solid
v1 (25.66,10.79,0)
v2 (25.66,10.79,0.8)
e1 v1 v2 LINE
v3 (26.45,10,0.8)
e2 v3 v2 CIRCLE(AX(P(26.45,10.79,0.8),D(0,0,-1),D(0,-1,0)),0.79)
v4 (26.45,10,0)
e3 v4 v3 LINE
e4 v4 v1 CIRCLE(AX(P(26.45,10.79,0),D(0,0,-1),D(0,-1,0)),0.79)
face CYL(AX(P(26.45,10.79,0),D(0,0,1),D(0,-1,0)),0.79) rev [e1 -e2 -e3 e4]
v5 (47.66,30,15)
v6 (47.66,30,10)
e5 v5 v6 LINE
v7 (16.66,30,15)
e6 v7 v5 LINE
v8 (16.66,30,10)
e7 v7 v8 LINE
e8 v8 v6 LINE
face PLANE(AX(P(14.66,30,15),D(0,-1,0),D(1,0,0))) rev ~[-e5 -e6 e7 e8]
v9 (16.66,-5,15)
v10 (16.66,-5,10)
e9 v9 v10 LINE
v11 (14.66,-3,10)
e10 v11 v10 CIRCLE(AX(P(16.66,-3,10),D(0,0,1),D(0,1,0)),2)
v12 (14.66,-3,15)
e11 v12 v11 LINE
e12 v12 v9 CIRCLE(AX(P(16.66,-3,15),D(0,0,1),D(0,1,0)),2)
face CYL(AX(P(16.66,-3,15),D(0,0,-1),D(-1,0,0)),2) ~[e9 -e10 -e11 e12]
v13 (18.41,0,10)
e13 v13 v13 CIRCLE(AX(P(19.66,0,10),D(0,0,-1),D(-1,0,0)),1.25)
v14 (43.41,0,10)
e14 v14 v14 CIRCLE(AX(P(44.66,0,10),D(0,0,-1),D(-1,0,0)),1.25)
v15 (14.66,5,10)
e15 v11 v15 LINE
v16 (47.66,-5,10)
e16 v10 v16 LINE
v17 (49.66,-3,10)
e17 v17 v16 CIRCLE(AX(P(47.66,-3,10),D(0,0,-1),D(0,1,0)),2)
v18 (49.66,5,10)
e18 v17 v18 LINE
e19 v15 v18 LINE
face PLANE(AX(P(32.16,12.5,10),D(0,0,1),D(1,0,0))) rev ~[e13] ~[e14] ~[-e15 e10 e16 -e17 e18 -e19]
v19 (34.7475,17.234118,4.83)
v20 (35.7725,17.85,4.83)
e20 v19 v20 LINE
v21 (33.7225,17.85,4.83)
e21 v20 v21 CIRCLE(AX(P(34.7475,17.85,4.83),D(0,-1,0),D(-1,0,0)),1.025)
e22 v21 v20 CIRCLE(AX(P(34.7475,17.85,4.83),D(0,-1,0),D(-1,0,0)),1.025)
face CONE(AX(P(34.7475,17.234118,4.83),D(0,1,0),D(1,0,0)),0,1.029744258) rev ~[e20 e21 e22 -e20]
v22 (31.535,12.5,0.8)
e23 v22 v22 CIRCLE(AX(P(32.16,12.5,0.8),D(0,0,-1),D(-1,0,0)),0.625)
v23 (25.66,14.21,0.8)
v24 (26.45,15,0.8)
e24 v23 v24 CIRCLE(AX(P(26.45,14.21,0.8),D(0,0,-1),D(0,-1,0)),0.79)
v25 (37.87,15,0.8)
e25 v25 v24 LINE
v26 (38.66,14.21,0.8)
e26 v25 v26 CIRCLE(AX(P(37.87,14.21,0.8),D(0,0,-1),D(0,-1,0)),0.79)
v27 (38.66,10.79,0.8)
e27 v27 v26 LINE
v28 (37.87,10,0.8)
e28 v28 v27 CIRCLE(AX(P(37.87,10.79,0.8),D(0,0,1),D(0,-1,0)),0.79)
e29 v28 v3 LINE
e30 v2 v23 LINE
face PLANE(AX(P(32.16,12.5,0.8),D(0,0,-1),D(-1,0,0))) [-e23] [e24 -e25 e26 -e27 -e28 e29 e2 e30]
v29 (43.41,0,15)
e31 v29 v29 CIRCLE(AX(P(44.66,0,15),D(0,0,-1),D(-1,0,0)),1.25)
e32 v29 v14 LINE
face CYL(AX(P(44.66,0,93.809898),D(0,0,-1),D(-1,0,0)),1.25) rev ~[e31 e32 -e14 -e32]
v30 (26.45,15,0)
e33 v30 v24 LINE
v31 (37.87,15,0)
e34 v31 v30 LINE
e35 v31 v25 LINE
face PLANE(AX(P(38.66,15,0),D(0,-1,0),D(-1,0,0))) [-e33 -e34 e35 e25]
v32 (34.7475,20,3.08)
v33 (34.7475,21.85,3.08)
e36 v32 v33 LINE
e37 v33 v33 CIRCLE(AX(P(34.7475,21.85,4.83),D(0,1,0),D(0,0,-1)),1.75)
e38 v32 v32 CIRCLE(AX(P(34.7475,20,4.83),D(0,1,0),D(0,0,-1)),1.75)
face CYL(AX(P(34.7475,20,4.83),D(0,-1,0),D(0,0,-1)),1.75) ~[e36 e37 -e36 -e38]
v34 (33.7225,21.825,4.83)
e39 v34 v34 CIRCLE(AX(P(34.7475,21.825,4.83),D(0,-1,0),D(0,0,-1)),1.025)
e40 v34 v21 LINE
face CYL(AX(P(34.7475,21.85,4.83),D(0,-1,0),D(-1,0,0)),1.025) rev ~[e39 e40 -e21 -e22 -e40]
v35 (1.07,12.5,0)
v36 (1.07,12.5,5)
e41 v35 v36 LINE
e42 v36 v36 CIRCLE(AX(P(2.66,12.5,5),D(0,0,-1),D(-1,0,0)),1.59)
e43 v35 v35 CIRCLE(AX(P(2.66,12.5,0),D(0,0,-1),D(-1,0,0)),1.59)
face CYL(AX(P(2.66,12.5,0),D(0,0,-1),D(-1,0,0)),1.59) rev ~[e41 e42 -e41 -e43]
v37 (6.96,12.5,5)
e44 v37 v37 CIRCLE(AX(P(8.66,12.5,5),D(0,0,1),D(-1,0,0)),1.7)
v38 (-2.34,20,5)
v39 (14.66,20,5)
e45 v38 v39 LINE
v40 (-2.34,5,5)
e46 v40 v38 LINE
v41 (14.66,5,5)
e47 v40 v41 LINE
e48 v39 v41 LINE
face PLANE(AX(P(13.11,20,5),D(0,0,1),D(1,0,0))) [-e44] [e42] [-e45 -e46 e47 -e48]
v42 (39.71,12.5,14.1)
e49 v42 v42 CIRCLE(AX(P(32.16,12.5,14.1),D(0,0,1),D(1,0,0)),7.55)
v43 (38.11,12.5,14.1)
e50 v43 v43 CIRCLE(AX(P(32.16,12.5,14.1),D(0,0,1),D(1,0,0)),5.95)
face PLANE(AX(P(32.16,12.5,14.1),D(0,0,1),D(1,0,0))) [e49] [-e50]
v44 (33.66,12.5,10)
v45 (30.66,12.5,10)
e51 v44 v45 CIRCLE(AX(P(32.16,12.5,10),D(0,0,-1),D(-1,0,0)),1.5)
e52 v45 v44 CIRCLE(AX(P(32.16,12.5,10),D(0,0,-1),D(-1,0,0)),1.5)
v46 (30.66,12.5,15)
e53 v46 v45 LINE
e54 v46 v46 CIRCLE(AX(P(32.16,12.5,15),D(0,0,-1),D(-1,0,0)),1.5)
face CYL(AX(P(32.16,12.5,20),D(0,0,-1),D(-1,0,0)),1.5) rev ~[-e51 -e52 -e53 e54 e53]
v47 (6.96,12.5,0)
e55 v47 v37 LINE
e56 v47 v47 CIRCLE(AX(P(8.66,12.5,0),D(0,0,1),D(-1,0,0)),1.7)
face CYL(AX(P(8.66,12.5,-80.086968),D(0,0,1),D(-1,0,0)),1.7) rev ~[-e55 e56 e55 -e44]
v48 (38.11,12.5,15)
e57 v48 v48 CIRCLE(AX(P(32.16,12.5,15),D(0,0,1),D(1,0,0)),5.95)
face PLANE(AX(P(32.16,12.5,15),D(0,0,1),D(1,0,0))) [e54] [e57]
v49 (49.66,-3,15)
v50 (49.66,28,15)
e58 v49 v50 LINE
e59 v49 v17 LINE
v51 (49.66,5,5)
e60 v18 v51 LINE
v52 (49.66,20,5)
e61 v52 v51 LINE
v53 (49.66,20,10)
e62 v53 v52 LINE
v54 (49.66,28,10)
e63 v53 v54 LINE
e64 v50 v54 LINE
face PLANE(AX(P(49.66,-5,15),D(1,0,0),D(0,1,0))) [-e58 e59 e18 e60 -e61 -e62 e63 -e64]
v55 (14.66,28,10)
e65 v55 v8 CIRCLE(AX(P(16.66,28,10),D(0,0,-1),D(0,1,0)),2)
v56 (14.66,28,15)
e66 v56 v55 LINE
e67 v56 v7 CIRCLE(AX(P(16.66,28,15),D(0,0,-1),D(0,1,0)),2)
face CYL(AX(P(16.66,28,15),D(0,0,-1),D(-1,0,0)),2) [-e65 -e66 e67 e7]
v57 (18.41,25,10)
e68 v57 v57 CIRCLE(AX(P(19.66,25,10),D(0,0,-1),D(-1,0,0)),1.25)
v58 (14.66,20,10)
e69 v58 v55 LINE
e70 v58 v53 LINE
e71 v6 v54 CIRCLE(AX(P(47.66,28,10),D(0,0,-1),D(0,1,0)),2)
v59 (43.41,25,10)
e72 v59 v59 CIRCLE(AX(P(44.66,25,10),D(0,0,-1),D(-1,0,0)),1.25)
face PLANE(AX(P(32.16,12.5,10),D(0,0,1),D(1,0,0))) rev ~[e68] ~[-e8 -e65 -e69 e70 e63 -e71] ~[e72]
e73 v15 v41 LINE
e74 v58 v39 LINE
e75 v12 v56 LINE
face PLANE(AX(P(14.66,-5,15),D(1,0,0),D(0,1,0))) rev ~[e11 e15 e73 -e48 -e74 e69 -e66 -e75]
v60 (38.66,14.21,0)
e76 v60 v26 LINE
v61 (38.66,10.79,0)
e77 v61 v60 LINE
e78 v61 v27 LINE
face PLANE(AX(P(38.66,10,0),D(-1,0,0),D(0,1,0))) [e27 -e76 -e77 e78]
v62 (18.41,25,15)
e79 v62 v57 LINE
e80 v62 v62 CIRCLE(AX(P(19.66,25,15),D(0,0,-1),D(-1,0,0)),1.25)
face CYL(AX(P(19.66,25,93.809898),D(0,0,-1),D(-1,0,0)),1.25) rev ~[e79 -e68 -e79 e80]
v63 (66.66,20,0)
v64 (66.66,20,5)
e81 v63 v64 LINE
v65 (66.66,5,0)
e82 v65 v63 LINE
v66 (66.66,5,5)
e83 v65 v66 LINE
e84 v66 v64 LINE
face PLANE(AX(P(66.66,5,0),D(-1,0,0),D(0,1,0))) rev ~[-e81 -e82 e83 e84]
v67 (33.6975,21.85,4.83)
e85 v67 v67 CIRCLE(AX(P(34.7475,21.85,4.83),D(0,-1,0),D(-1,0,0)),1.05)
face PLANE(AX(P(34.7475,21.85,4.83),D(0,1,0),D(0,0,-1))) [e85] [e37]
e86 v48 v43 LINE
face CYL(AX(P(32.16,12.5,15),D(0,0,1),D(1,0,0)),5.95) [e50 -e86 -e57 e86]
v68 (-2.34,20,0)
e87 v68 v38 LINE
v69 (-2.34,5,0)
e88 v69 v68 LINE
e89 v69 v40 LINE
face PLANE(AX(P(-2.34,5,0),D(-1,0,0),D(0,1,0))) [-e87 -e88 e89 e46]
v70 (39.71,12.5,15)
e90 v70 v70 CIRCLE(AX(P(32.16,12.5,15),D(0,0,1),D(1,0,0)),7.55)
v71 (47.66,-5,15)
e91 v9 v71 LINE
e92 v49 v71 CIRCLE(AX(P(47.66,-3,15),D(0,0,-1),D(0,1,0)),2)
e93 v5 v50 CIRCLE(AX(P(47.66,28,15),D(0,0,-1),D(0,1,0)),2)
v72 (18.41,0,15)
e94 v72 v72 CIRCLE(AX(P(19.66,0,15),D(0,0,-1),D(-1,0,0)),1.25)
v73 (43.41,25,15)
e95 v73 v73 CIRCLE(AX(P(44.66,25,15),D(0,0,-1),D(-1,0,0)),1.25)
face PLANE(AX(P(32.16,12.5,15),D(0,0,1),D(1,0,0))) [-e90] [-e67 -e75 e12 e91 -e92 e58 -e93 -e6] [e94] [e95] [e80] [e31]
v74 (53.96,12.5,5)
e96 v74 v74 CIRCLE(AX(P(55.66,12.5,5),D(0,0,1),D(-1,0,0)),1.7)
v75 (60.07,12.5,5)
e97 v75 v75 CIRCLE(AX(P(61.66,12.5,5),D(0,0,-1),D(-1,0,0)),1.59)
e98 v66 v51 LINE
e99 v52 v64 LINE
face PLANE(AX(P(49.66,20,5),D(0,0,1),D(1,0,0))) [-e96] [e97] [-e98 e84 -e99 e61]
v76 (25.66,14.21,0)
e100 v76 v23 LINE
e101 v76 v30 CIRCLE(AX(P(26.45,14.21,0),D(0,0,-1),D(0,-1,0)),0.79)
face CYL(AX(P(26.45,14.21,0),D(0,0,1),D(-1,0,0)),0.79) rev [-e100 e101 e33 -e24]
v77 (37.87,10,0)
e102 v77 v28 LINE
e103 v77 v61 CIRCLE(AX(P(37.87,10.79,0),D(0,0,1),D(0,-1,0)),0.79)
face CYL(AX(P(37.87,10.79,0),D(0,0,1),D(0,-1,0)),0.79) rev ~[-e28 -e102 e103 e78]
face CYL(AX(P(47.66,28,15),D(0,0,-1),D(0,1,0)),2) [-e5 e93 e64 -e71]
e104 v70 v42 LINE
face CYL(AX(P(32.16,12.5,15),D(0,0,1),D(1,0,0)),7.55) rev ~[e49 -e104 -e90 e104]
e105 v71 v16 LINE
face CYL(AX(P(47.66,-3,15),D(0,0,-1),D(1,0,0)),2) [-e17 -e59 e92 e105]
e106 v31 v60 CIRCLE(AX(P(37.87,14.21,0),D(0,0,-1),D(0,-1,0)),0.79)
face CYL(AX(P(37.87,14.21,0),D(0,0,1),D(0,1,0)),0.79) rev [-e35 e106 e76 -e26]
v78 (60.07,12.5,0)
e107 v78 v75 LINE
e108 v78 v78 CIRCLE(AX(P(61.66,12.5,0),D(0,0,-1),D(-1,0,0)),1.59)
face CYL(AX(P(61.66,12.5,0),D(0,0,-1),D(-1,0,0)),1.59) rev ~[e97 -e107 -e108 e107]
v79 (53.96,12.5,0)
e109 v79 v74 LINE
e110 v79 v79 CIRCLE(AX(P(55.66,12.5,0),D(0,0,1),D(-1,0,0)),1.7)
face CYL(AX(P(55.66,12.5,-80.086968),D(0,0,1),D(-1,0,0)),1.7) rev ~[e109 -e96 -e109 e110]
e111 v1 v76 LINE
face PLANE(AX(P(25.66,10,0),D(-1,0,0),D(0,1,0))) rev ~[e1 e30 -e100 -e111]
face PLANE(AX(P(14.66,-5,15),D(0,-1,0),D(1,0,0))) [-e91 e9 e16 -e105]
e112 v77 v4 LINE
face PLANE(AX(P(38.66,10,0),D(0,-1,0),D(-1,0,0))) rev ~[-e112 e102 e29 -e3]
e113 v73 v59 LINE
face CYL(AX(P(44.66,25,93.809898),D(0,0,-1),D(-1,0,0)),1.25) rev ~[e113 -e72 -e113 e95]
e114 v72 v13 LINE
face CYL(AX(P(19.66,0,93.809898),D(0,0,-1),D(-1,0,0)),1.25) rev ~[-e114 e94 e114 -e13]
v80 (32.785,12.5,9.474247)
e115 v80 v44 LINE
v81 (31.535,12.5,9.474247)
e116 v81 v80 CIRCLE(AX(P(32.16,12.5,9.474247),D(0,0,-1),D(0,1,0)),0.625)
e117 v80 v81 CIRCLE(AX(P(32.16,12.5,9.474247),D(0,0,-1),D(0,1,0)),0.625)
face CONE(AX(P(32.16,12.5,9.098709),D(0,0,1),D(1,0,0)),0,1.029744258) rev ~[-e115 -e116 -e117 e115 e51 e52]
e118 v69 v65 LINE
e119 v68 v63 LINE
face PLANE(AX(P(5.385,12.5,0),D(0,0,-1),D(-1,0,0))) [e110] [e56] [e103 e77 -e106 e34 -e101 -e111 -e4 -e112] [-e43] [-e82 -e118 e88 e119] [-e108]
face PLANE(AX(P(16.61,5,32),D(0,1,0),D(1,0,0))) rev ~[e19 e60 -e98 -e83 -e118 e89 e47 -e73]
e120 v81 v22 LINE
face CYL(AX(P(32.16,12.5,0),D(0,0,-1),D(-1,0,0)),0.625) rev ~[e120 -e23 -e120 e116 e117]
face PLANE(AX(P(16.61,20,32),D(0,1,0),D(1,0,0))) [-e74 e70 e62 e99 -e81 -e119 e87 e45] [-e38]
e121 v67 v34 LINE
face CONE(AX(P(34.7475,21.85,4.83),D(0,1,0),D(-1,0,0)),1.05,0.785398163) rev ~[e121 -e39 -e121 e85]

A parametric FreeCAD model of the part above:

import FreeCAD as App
import Part
import Sketcher

V = App.Vector


def edges_at(feature, points):
    """Names of the edges that pass closest to the given points."""
    edges = feature.Shape.Edges
    near = lambda p: min(range(len(edges)), key=lambda i: edges[i].distToShape(Part.Vertex(*p))[0])
    return sorted({f"Edge{near(p) + 1}" for p in points})


def add_polygon(sketch, points):
    """Adds a closed chain of lines whose ends are joined by coincident constraints."""
    first, n = sketch.GeometryCount, len(points)
    for a, b in zip(points, points[1:] + points[:1]):
        sketch.addGeometry(Part.LineSegment(App.Vector(*a, 0), App.Vector(*b, 0)), False)
    for i in range(n):
        sketch.addConstraint(Sketcher.Constraint("Coincident", first + i, 2, first + (i + 1) % n, 1))

doc = App.newDocument("Part")
body = doc.addObject("PartDesign::Body", "Body")

sketch1 = body.newObject("Sketcher::SketchObject", "Sketch")
sketch1.AttachmentSupport = (doc.getObject("XY_Plane"), [""])
sketch1.MapMode = "FlatFace"
add_polygon(sketch1, [(0, 20), (0, 0), (60, 0), (60, 20)])
sketch1.addConstraint(Sketcher.Constraint("Vertical", 0))
sketch1.addConstraint(Sketcher.Constraint("Horizontal", 1))
sketch1.addConstraint(Sketcher.Constraint("Vertical", 2))
sketch1.addConstraint(Sketcher.Constraint("Horizontal", 3))
sketch1.addConstraint(Sketcher.Constraint("Coincident", 0, 2, -1, 1))
sketch1.addConstraint(Sketcher.Constraint("DistanceX", 1, 1, 1, 2, 60.0))
sketch1.addConstraint(Sketcher.Constraint("DistanceY", 0, 2, 0, 1, 20.0))
pad1 = body.newObject("PartDesign::Pad", "Pad")
pad1.Profile = sketch1
pad1.Length = 37

sketch2 = body.newObject("Sketcher::SketchObject", "Sketch001")
sketch2.AttachmentSupport = (doc.getObject("XY_Plane"), [""])
sketch2.MapMode = "FlatFace"
add_polygon(sketch2, [(60, 5), (60, 0), (0, 0), (0, 5)])
sketch2.addConstraint(Sketcher.Constraint("Vertical", 0))
sketch2.addConstraint(Sketcher.Constraint("Horizontal", 1))
sketch2.addConstraint(Sketcher.Constraint("Vertical", 2))
sketch2.addConstraint(Sketcher.Constraint("Horizontal", 3))
sketch2.addConstraint(Sketcher.Constraint("Coincident", 1, 2, -1, 1))
sketch2.addConstraint(Sketcher.Constraint("DistanceX", 1, 2, 1, 1, 60.0))
sketch2.addConstraint(Sketcher.Constraint("DistanceY", 0, 2, 0, 1, 5.0))
pocket1 = body.newObject("PartDesign::Pocket", "Pocket")
pocket1.Profile = sketch2
pocket1.Type = "ThroughAll"
pocket1.Midplane = True

sketch3 = body.newObject("Sketcher::SketchObject", "Sketch002")
sketch3.AttachmentSupport = (doc.getObject("XZ_Plane"), [""])
sketch3.MapMode = "FlatFace"
sketch3.AttachmentOffset = App.Placement(V(0, 0, -20), App.Rotation())
sketch3.addGeometry(Part.Circle(V(34.7, 4.8, 0), V(0, 0, 1), 1.8), False)
sketch3.addConstraint(Sketcher.Constraint("Diameter", 0, 3.5))
sketch3.addConstraint(Sketcher.Constraint("DistanceY", -1, 1, 0, 3, 4.83))
sketch3.addConstraint(Sketcher.Constraint("DistanceX", -1, 1, 0, 3, 34.7475))
pad2 = body.newObject("PartDesign::Pad", "Pad001")
pad2.Profile = sketch3
pad2.Length = 1.85
pad2.Reversed = True

sketch4 = body.newObject("Sketcher::SketchObject", "Sketch003")
sketch4.AttachmentSupport = (doc.getObject("XZ_Plane"), [""])
sketch4.MapMode = "FlatFace"
sketch4.AttachmentOffset = App.Placement(V(0, 0, -20), App.Rotation())
add_polygon(sketch4, [(59.66, 0), (59.66, 37), (60, 37), (60, 0)])
add_polygon(sketch4, [(0, 0), (0, 37), (4.66, 37), (4.66, 0)])
sketch4.addConstraint(Sketcher.Constraint("Vertical", 0))
sketch4.addConstraint(Sketcher.Constraint("Horizontal", 1))
sketch4.addConstraint(Sketcher.Constraint("Vertical", 2))
sketch4.addConstraint(Sketcher.Constraint("Horizontal", 3))
sketch4.addConstraint(Sketcher.Constraint("Vertical", 4))
sketch4.addConstraint(Sketcher.Constraint("Horizontal", 5))
sketch4.addConstraint(Sketcher.Constraint("Vertical", 6))
sketch4.addConstraint(Sketcher.Constraint("Horizontal", 7))
sketch4.addConstraint(Sketcher.Constraint("Coincident", 7, 2, -1, 1))
sketch4.addConstraint(Sketcher.Constraint("PointOnObject", 2, 2, -1))
sketch4.addConstraint(Sketcher.Constraint("Horizontal", 1, 2, 4, 2))
sketch4.addConstraint(Sketcher.Constraint("DistanceY", 0, 1, 0, 2, 37.0))
sketch4.addConstraint(Sketcher.Constraint("DistanceX", -1, 1, 1, 2, 60.0))
sketch4.addConstraint(Sketcher.Constraint("DistanceX", 5, 2, 0, 2, 55.0))
sketch4.addConstraint(Sketcher.Constraint("DistanceX", 1, 1, 1, 2, 0.34))
pocket2 = body.newObject("PartDesign::Pocket", "Pocket001")
pocket2.Profile = sketch4
pocket2.Type = "ThroughAll"
pocket2.Reversed = True

sketch5 = body.newObject("Sketcher::SketchObject", "Sketch004")
sketch5.AttachmentSupport = (doc.getObject("XZ_Plane"), [""])
sketch5.MapMode = "FlatFace"
sketch5.AttachmentOffset = App.Placement(V(0, 0, -20), App.Rotation())
add_polygon(sketch5, [(51, 5), (51, 37), (60, 37), (60, 5)])
add_polygon(sketch5, [(5, 5), (5, 37), (13, 37), (13, 5)])
sketch5.addConstraint(Sketcher.Constraint("Vertical", 0))
sketch5.addConstraint(Sketcher.Constraint("Horizontal", 1))
sketch5.addConstraint(Sketcher.Constraint("Vertical", 2))
sketch5.addConstraint(Sketcher.Constraint("Horizontal", 3))
sketch5.addConstraint(Sketcher.Constraint("Vertical", 4))
sketch5.addConstraint(Sketcher.Constraint("Horizontal", 5))
sketch5.addConstraint(Sketcher.Constraint("Vertical", 6))
sketch5.addConstraint(Sketcher.Constraint("Horizontal", 7))
sketch5.addConstraint(Sketcher.Constraint("Horizontal", 1, 2, 4, 2))
sketch5.addConstraint(Sketcher.Constraint("Horizontal", 3, 2, 6, 2))
sketch5.addConstraint(Sketcher.Constraint("Equal", 3, 5))
sketch5.addConstraint(Sketcher.Constraint("DistanceY", 0, 1, 0, 2, 32.0))
sketch5.addConstraint(Sketcher.Constraint("DistanceY", -1, 1, 0, 2, 37.0))
sketch5.addConstraint(Sketcher.Constraint("DistanceX", 4, 2, 1, 2, 55.0))
sketch5.addConstraint(Sketcher.Constraint("DistanceX", 1, 1, 1, 2, 8.45))
sketch5.addConstraint(Sketcher.Constraint("DistanceX", -1, 1, 0, 2, 51.21))
pocket3 = body.newObject("PartDesign::Pocket", "Pocket002")
pocket3.Profile = sketch5
pocket3.Type = "ThroughAll"
pocket3.Reversed = True

sketch6 = body.newObject("Sketcher::SketchObject", "Sketch005")
sketch6.AttachmentSupport = (doc.getObject("XZ_Plane"), [""])
sketch6.MapMode = "FlatFace"
sketch6.AttachmentOffset = App.Placement(V(0, 0, -20), App.Rotation())
add_polygon(sketch6, [(-3, -8), (-3, 45), (68, 45), (68, -8)])
add_polygon(sketch6, [(51, 37), (13, 37), (13, 17), (51, 17)])
sketch6.addConstraint(Sketcher.Constraint("Vertical", 0))
sketch6.addConstraint(Sketcher.Constraint("Horizontal", 1))
sketch6.addConstraint(Sketcher.Constraint("Vertical", 2))
sketch6.addConstraint(Sketcher.Constraint("Horizontal", 3))
sketch6.addConstraint(Sketcher.Constraint("Horizontal", 4))
sketch6.addConstraint(Sketcher.Constraint("Vertical", 5))
sketch6.addConstraint(Sketcher.Constraint("Horizontal", 6))
sketch6.addConstraint(Sketcher.Constraint("Vertical", 7))
sketch6.addConstraint(Sketcher.Constraint("DistanceY", 5, 2, 5, 1, 20.0))
sketch6.addConstraint(Sketcher.Constraint("DistanceX", 4, 2, 4, 1, 38.1))
sketch6.addConstraint(Sketcher.Constraint("DistanceY", -1, 1, 4, 2, 37.0))
sketch6.addConstraint(Sketcher.Constraint("DistanceX", 1, 1, 1, 2, 70.68))
sketch6.addConstraint(Sketcher.Constraint("DistanceY", 0, 1, 0, 2, 52.68))
sketch6.addConstraint(Sketcher.Constraint("DistanceX", -1, 1, 1, 2, 67.5))
sketch6.addConstraint(Sketcher.Constraint("DistanceY", -1, 1, 0, 2, 44.84))
sketch6.addConstraint(Sketcher.Constraint("DistanceX", -1, 1, 4, 2, 13.11))
pocket4 = body.newObject("PartDesign::Pocket", "Pocket003")
pocket4.Profile = sketch6
pocket4.Type = "ThroughAll"
pocket4.Midplane = True

sketch7 = body.newObject("Sketcher::SketchObject", "Sketch006")
sketch7.AttachmentSupport = (doc.getObject("XZ_Plane"), [""])
sketch7.MapMode = "FlatFace"
sketch7.AttachmentOffset = App.Placement(V(0, 0, -20), App.Rotation())
add_polygon(sketch7, [(13, 27), (13, 37), (20, 37), (20, 27)])
add_polygon(sketch7, [(44, 27), (44, 37), (51, 37), (51, 27)])
sketch7.addConstraint(Sketcher.Constraint("Vertical", 0))
sketch7.addConstraint(Sketcher.Constraint("Horizontal", 1))
sketch7.addConstraint(Sketcher.Constraint("Vertical", 2))
sketch7.addConstraint(Sketcher.Constraint("Horizontal", 3))
sketch7.addConstraint(Sketcher.Constraint("Vertical", 4))
sketch7.addConstraint(Sketcher.Constraint("Horizontal", 5))
sketch7.addConstraint(Sketcher.Constraint("Vertical", 6))
sketch7.addConstraint(Sketcher.Constraint("Horizontal", 7))
sketch7.addConstraint(Sketcher.Constraint("Horizontal", 1, 2, 4, 2))
sketch7.addConstraint(Sketcher.Constraint("Horizontal", 3, 2, 6, 2))
sketch7.addConstraint(Sketcher.Constraint("Equal", 3, 5))
sketch7.addConstraint(Sketcher.Constraint("DistanceX", 1, 1, 1, 2, 7.0))
sketch7.addConstraint(Sketcher.Constraint("DistanceY", 0, 1, 0, 2, 10.0))
sketch7.addConstraint(Sketcher.Constraint("DistanceY", -1, 1, 0, 2, 37.0))
sketch7.addConstraint(Sketcher.Constraint("DistanceX", 1, 2, 4, 2, 24.1))
sketch7.addConstraint(Sketcher.Constraint("DistanceX", -1, 1, 0, 2, 13.11))
pocket5 = body.newObject("PartDesign::Pocket", "Pocket004")
pocket5.Profile = sketch7
pocket5.Type = "ThroughAll"
pocket5.Midplane = True

sketch8 = body.newObject("Sketcher::SketchObject", "Sketch007")
sketch8.AttachmentSupport = (doc.getObject("XY_Plane"), [""])
sketch8.MapMode = "FlatFace"
sketch8.AttachmentOffset = App.Placement(V(0, 0, 27), App.Rotation())
sketch8.addGeometry(Part.Circle(V(17.1, 12.5, 0), V(0, 0, 1), 1.7), False)
sketch8.addGeometry(Part.Circle(V(47.2, 12.5, 0), V(0, 0, 1), 1.7), False)
sketch8.addConstraint(Sketcher.Constraint("Equal", 0, 1))
sketch8.addConstraint(Sketcher.Constraint("Horizontal", 0, 3, 1, 3))
sketch8.addConstraint(Sketcher.Constraint("Diameter", 0, 3.4))
sketch8.addConstraint(Sketcher.Constraint("DistanceY", -1, 1, 0, 3, 12.5))
sketch8.addConstraint(Sketcher.Constraint("DistanceX", 0, 3, 1, 3, 30.1))
sketch8.addConstraint(Sketcher.Constraint("DistanceX", -1, 1, 0, 3, 17.11))
doc.recompute()
hole = body.newObject("PartDesign::Hole", "Hole")
hole.Profile = sketch8
hole.ThreadType = "None"
hole.Diameter = 3.4
hole.DepthType = "ThroughAll"

sketch9 = body.newObject("Sketcher::SketchObject", "Sketch008")
sketch9.AttachmentSupport = (doc.getObject("XY_Plane"), [""])
sketch9.MapMode = "FlatFace"
sketch9.AttachmentOffset = App.Placement(V(0, 0, 37), App.Rotation())
sketch9.addGeometry(Part.Circle(V(32.2, 12.5, 0), V(0, 0, 1), 2), False)
sketch9.addConstraint(Sketcher.Constraint("Diameter", 0, 4.0386))
sketch9.addConstraint(Sketcher.Constraint("DistanceY", -1, 1, 0, 3, 12.5))
sketch9.addConstraint(Sketcher.Constraint("DistanceX", -1, 1, 0, 3, 32.16))
doc.recompute()
hole2 = body.newObject("PartDesign::Hole", "Hole001")
hole2.Profile = sketch9
hole2.ThreadType = "None"
hole2.Diameter = 4.0386
hole2.DepthType = "Dimension"
hole2.Depth = 5
hole2.DrillPoint = "Angled"
hole2.DrillPointAngle = 118

sketch10 = body.newObject("Sketcher::SketchObject", "Sketch009")
sketch10.AttachmentSupport = (doc.getObject("XY_Plane"), [""])
sketch10.MapMode = "FlatFace"
sketch10.AttachmentOffset = App.Placement(V(0, 0, 17), App.Rotation())
sketch10.addGeometry(Part.Circle(V(32.2, 12.5, 0), V(0, 0, 1), 0.6), False)
sketch10.addConstraint(Sketcher.Constraint("Diameter", 0, 1.25))
sketch10.addConstraint(Sketcher.Constraint("DistanceY", -1, 1, 0, 3, 12.5))
sketch10.addConstraint(Sketcher.Constraint("DistanceX", -1, 1, 0, 3, 32.16))
pocket6 = body.newObject("PartDesign::Pocket", "Pocket005")
pocket6.Profile = sketch10
pocket6.Length = 27
pocket6.Reversed = True

sketch11 = body.newObject("Sketcher::SketchObject", "Sketch010")
sketch11.AttachmentSupport = (doc.getObject("XZ_Plane"), [""])
sketch11.MapMode = "FlatFace"
sketch11.AttachmentOffset = App.Placement(V(0, 0, -12.5), App.Rotation())
add_polygon(sketch11, [(32.2, 37), (34.2, 37), (34.2, 30.3), (32.8, 29.4), (32.8, 17), (32.2, 17)])
sketch11.addGeometry(Part.LineSegment(V(32.2, 37, 0), V(32.2, 17, 0)), True)
sketch11.addConstraint(Sketcher.Constraint("Horizontal", 0))
sketch11.addConstraint(Sketcher.Constraint("Vertical", 1))
sketch11.addConstraint(Sketcher.Constraint("Vertical", 3))
sketch11.addConstraint(Sketcher.Constraint("Horizontal", 4))
sketch11.addConstraint(Sketcher.Constraint("Vertical", 5))
sketch11.addConstraint(Sketcher.Constraint("Vertical", 6))
sketch11.addConstraint(Sketcher.Constraint("Coincident", 6, 1, 5, 2))
sketch11.addConstraint(Sketcher.Constraint("Horizontal", 3, 2, 6, 2))
sketch11.addConstraint(Sketcher.Constraint("DistanceY", 5, 1, 5, 2, 20.0))
sketch11.addConstraint(Sketcher.Constraint("DistanceY", -1, 1, 0, 2, 37.0))
sketch11.addConstraint(Sketcher.Constraint("DistanceX", 0, 1, 0, 2, 2.02))
sketch11.addConstraint(Sketcher.Constraint("DistanceX", 4, 2, 4, 1, 0.62))
sketch11.addConstraint(Sketcher.Constraint("DistanceY", 1, 2, 1, 1, 6.71))
sketch11.addConstraint(Sketcher.Constraint("DistanceY", 3, 2, 3, 1, 12.45))
sketch11.addConstraint(Sketcher.Constraint("DistanceX", -1, 1, 0, 2, 34.18))
groove = body.newObject("PartDesign::Groove", "Groove")
groove.Profile = sketch11
groove.ReferenceAxis = (sketch11, ["Axis0"])
groove.Angle = 360

sketch12 = body.newObject("Sketcher::SketchObject", "Sketch011")
sketch12.AttachmentSupport = (doc.getObject("XY_Plane"), [""])
sketch12.MapMode = "FlatFace"
sketch12.AttachmentOffset = App.Placement(V(0, 0, 17), App.Rotation())
sketch12.addGeometry(Part.Circle(V(37.2, 15, 0), V(0, 0, 1), 1.6), False)
sketch12.addGeometry(Part.Circle(V(27.1, 15, 0), V(0, 0, 1), 1.6), False)
sketch12.addConstraint(Sketcher.Constraint("Equal", 0, 1))
sketch12.addConstraint(Sketcher.Constraint("Horizontal", 0, 3, 1, 3))
sketch12.addConstraint(Sketcher.Constraint("Diameter", 0, 3.16))
sketch12.addConstraint(Sketcher.Constraint("DistanceY", -1, 1, 0, 3, 15.0))
sketch12.addConstraint(Sketcher.Constraint("DistanceX", 1, 3, 0, 3, 10.1))
sketch12.addConstraint(Sketcher.Constraint("DistanceX", -1, 1, 0, 3, 37.21))
pocket7 = body.newObject("PartDesign::Pocket", "Pocket006")
pocket7.Profile = sketch12
pocket7.Length = 8
pocket7.Reversed = True

sketch13 = body.newObject("Sketcher::SketchObject", "Sketch012")
sketch13.AttachmentSupport = (doc.getObject("XY_Plane"), [""])
sketch13.MapMode = "FlatFace"
sketch13.AttachmentOffset = App.Placement(V(0, 0, 17), App.Rotation())
sketch13.addGeometry(Part.Circle(V(47.2, 12.5, 0), V(0, 0, 1), 1.7), False)
sketch13.addGeometry(Part.Circle(V(17.1, 12.5, 0), V(0, 0, 1), 1.7), False)
sketch13.addGeometry(Part.Circle(V(27.1, 15, 0), V(0, 0, 1), 1.6), False)
sketch13.addGeometry(Part.Circle(V(37.2, 15, 0), V(0, 0, 1), 1.6), False)
sketch13.addConstraint(Sketcher.Constraint("Equal", 2, 3))
sketch13.addConstraint(Sketcher.Constraint("Horizontal", 0, 3, 1, 3))
sketch13.addConstraint(Sketcher.Constraint("Horizontal", 2, 3, 3, 3))
sketch13.addConstraint(Sketcher.Constraint("Diameter", 1, 3.4))
sketch13.addConstraint(Sketcher.Constraint("Diameter", 2, 3.16))
sketch13.addConstraint(Sketcher.Constraint("DistanceY", -1, 1, 2, 3, 15.0))
sketch13.addConstraint(Sketcher.Constraint("DistanceX", 1, 3, 2, 3, 10.0))
sketch13.addConstraint(Sketcher.Constraint("DistanceX", 3, 3, 0, 3, 10.0))
sketch13.addConstraint(Sketcher.Constraint("DistanceY", -1, 1, 0, 3, 12.5))
sketch13.addConstraint(Sketcher.Constraint("DistanceX", 1, 3, 0, 3, 30.1))
sketch13.addConstraint(Sketcher.Constraint("Diameter", 0, 3.41839))
sketch13.addConstraint(Sketcher.Constraint("DistanceX", -1, 1, 0, 3, 47.21))
pad3 = body.newObject("PartDesign::Pad", "Pad002")
pad3.Profile = sketch13
pad3.Length = 10

sketch14 = body.newObject("Sketcher::SketchObject", "Sketch013")
sketch14.AttachmentSupport = (doc.getObject("XY_Plane"), [""])
sketch14.MapMode = "FlatFace"
add_polygon(sketch14, [(51.2, 20), (51.2, 5), (13.1, 5), (13.1, 20)])
sketch14.addGeometry(Part.Circle(V(32.2, 12.5, 0), V(0, 0, 1), 0.6), False)
sketch14.addConstraint(Sketcher.Constraint("Vertical", 0))
sketch14.addConstraint(Sketcher.Constraint("Horizontal", 1))
sketch14.addConstraint(Sketcher.Constraint("Vertical", 2))
sketch14.addConstraint(Sketcher.Constraint("Horizontal", 3))
sketch14.addConstraint(Sketcher.Constraint("Diameter", 4, 1.25))
sketch14.addConstraint(Sketcher.Constraint("DistanceY", 0, 2, 0, 1, 15.0))
sketch14.addConstraint(Sketcher.Constraint("DistanceX", 1, 2, 1, 1, 38.1))
sketch14.addConstraint(Sketcher.Constraint("DistanceY", -1, 1, 0, 2, 5.0))
sketch14.addConstraint(Sketcher.Constraint("DistanceY", -1, 1, 4, 3, 12.5))
sketch14.addConstraint(Sketcher.Constraint("DistanceX", -1, 1, 4, 3, 32.16))
sketch14.addConstraint(Sketcher.Constraint("DistanceX", -1, 1, 0, 2, 51.21))
pad4 = body.newObject("PartDesign::Pad", "Pad003")
pad4.Profile = sketch14
pad4.Length = 17

sketch15 = body.newObject("Sketcher::SketchObject", "Sketch014")
sketch15.AttachmentSupport = (doc.getObject("XY_Plane"), [""])
sketch15.MapMode = "FlatFace"
add_polygon(sketch15, [(13, 20), (13, 5), (-2, 5), (-2, 20)])
add_polygon(sketch15, [(67, 20), (67, 5), (51, 5), (51, 20)])
sketch15.addConstraint(Sketcher.Constraint("Vertical", 0))
sketch15.addConstraint(Sketcher.Constraint("Horizontal", 1))
sketch15.addConstraint(Sketcher.Constraint("Vertical", 2))
sketch15.addConstraint(Sketcher.Constraint("Horizontal", 3))
sketch15.addConstraint(Sketcher.Constraint("Vertical", 4))
sketch15.addConstraint(Sketcher.Constraint("Horizontal", 5))
sketch15.addConstraint(Sketcher.Constraint("Vertical", 6))
sketch15.addConstraint(Sketcher.Constraint("Horizontal", 7))
sketch15.addConstraint(Sketcher.Constraint("Horizontal", 1, 2, 4, 2))
sketch15.addConstraint(Sketcher.Constraint("Horizontal", 3, 2, 6, 2))
sketch15.addConstraint(Sketcher.Constraint("Equal", 3, 5))
sketch15.addConstraint(Sketcher.Constraint("DistanceY", 0, 2, 0, 1, 15.0))
sketch15.addConstraint(Sketcher.Constraint("DistanceY", -1, 1, 0, 2, 5.0))
sketch15.addConstraint(Sketcher.Constraint("DistanceX", 1, 2, 4, 2, 69.0))
sketch15.addConstraint(Sketcher.Constraint("DistanceX", 1, 2, 1, 1, 15.45))
sketch15.addConstraint(Sketcher.Constraint("DistanceX", -1, 1, 0, 2, 13.11))
pad5 = body.newObject("PartDesign::Pad", "Pad004")
pad5.Profile = sketch15
pad5.Length = 5

sketch16 = body.newObject("Sketcher::SketchObject", "Sketch015")
sketch16.AttachmentSupport = (doc.getObject("XZ_Plane"), [""])
sketch16.MapMode = "FlatFace"
sketch16.AttachmentOffset = App.Placement(V(0, 0, -20), App.Rotation())
sketch16.addGeometry(Part.Circle(V(34.7, 4.8, 0), V(0, 0, 1), 1.8), False)
sketch16.addConstraint(Sketcher.Constraint("Diameter", 0, 3.5))
sketch16.addConstraint(Sketcher.Constraint("DistanceY", -1, 1, 0, 3, 4.83))
sketch16.addConstraint(Sketcher.Constraint("DistanceX", -1, 1, 0, 3, 34.7475))
pad6 = body.newObject("PartDesign::Pad", "Pad005")
pad6.Profile = sketch16
pad6.Length = 1.85
pad6.Reversed = True

sketch17 = body.newObject("Sketcher::SketchObject", "Sketch016")
sketch17.AttachmentSupport = (doc.getObject("XZ_Plane"), [""])
sketch17.MapMode = "FlatFace"
sketch17.AttachmentOffset = App.Placement(V(0, 0, -21.85), App.Rotation())
sketch17.addGeometry(Part.Circle(V(34.7, 4.8, 0), V(0, 0, 1), 1), False)
sketch17.addConstraint(Sketcher.Constraint("Diameter", 0, 2.05))
sketch17.addConstraint(Sketcher.Constraint("DistanceY", -1, 1, 0, 3, 4.83))
sketch17.addConstraint(Sketcher.Constraint("DistanceX", -1, 1, 0, 3, 34.7475))
doc.recompute()
hole3 = body.newObject("PartDesign::Hole", "Hole002")
hole3.Profile = sketch17
hole3.ThreadType = "None"
hole3.Diameter = 2.05
hole3.DepthType = "Dimension"
hole3.Depth = 4
hole3.DrillPoint = "Angled"
hole3.DrillPointAngle = 118
hole3.HoleCutType = "Countersink"
hole3.HoleCutDiameter = 2.1
hole3.HoleCutCountersinkAngle = 90
hole3.Reversed = True

sketch18 = body.newObject("Sketcher::SketchObject", "Sketch017")
sketch18.AttachmentSupport = (doc.getObject("XY_Plane"), [""])
sketch18.MapMode = "FlatFace"
sketch18.addGeometry(Part.Circle(V(8.7, 12.5, 0), V(0, 0, 1), 1.7), False)
sketch18.addGeometry(Part.Circle(V(55.7, 12.5, 0), V(0, 0, 1), 1.7), False)
sketch18.addConstraint(Sketcher.Constraint("Equal", 0, 1))
sketch18.addConstraint(Sketcher.Constraint("Horizontal", 0, 3, 1, 3))
sketch18.addConstraint(Sketcher.Constraint("Diameter", 0, 3.4))
sketch18.addConstraint(Sketcher.Constraint("DistanceX", 0, 3, 1, 3, 47.0))
sketch18.addConstraint(Sketcher.Constraint("DistanceY", -1, 1, 0, 3, 12.5))
sketch18.addConstraint(Sketcher.Constraint("DistanceX", -1, 1, 0, 3, 8.66))
doc.recompute()
hole4 = body.newObject("PartDesign::Hole", "Hole003")
hole4.Profile = sketch18
hole4.ThreadType = "None"
hole4.Diameter = 3.4
hole4.DepthType = "ThroughAll"
hole4.Reversed = True

sketch19 = body.newObject("Sketcher::SketchObject", "Sketch018")
sketch19.AttachmentSupport = (doc.getObject("XY_Plane"), [""])
sketch19.MapMode = "FlatFace"
sketch19.addGeometry(Part.Circle(V(61.7, 12.5, 0), V(0, 0, 1), 1.6), False)
sketch19.addGeometry(Part.Circle(V(2.7, 12.5, 0), V(0, 0, 1), 1.6), False)
sketch19.addConstraint(Sketcher.Constraint("Equal", 0, 1))
sketch19.addConstraint(Sketcher.Constraint("Horizontal", 0, 3, 1, 3))
sketch19.addConstraint(Sketcher.Constraint("Diameter", 0, 3.18))
sketch19.addConstraint(Sketcher.Constraint("DistanceX", 1, 3, 0, 3, 59.0))
sketch19.addConstraint(Sketcher.Constraint("DistanceY", -1, 1, 0, 3, 12.5))
sketch19.addConstraint(Sketcher.Constraint("DistanceX", -1, 1, 0, 3, 61.66))
pocket8 = body.newObject("PartDesign::Pocket", "Pocket007")
pocket8.Profile = sketch19
pocket8.Length = 5
pocket8.Reversed = True

sketch20 = body.newObject("Sketcher::SketchObject", "Sketch019")
sketch20.AttachmentSupport = (doc.getObject("XY_Plane"), [""])
sketch20.MapMode = "FlatFace"
add_polygon(sketch20, [(39, 15), (39, 10), (26, 10), (26, 15)])
sketch20.addConstraint(Sketcher.Constraint("Vertical", 0))
sketch20.addConstraint(Sketcher.Constraint("Horizontal", 1))
sketch20.addConstraint(Sketcher.Constraint("Vertical", 2))
sketch20.addConstraint(Sketcher.Constraint("Horizontal", 3))
sketch20.addConstraint(Sketcher.Constraint("DistanceX", 1, 2, 1, 1, 13.0))
sketch20.addConstraint(Sketcher.Constraint("DistanceY", 0, 2, 0, 1, 5.0))
sketch20.addConstraint(Sketcher.Constraint("DistanceY", -1, 1, 0, 2, 10.0))
sketch20.addConstraint(Sketcher.Constraint("DistanceX", -1, 1, 0, 2, 38.66))
pocket9 = body.newObject("PartDesign::Pocket", "Pocket008")
pocket9.Profile = sketch20
pocket9.Length = 0.8
pocket9.Reversed = True
doc.recompute()

fillet = body.newObject("PartDesign::Fillet", "Fillet")
fillet.Base = (pocket9, edges_at(pocket9, [
    (38.66, 10, 0.4),
    (38.66, 15, 0.4),
    (25.66, 15, 0.4),
    (25.66, 10, 0.4),
]))
fillet.Radius = 0.79

sketch21 = body.newObject("Sketcher::SketchObject", "Sketch020")
sketch21.AttachmentSupport = (doc.getObject("XZ_Plane"), [""])
sketch21.MapMode = "FlatFace"
sketch21.AttachmentOffset = App.Placement(V(0, 0, -20), App.Rotation())
add_polygon(sketch21, [(13, 27), (13, 37), (20, 37), (20, 27)])
add_polygon(sketch21, [(44, 27), (44, 37), (51, 37), (51, 27)])
sketch21.addConstraint(Sketcher.Constraint("Vertical", 0))
sketch21.addConstraint(Sketcher.Constraint("Horizontal", 1))
sketch21.addConstraint(Sketcher.Constraint("Vertical", 2))
sketch21.addConstraint(Sketcher.Constraint("Horizontal", 3))
sketch21.addConstraint(Sketcher.Constraint("Vertical", 4))
sketch21.addConstraint(Sketcher.Constraint("Horizontal", 5))
sketch21.addConstraint(Sketcher.Constraint("Vertical", 6))
sketch21.addConstraint(Sketcher.Constraint("Horizontal", 7))
sketch21.addConstraint(Sketcher.Constraint("Horizontal", 1, 2, 4, 2))
sketch21.addConstraint(Sketcher.Constraint("Horizontal", 3, 2, 6, 2))
sketch21.addConstraint(Sketcher.Constraint("Equal", 3, 5))
sketch21.addConstraint(Sketcher.Constraint("DistanceX", 1, 1, 1, 2, 7.0))
sketch21.addConstraint(Sketcher.Constraint("DistanceY", 0, 1, 0, 2, 10.0))
sketch21.addConstraint(Sketcher.Constraint("DistanceY", -1, 1, 0, 2, 37.0))
sketch21.addConstraint(Sketcher.Constraint("DistanceX", 1, 2, 4, 2, 24.1))
sketch21.addConstraint(Sketcher.Constraint("DistanceX", -1, 1, 0, 2, 13.11))
pad7 = body.newObject("PartDesign::Pad", "Pad006")
pad7.Profile = sketch21
pad7.Length = 15

sketch22 = body.newObject("Sketcher::SketchObject", "Sketch021")
sketch22.AttachmentSupport = (doc.getObject("XZ_Plane"), [""])
sketch22.MapMode = "FlatFace"
sketch22.AttachmentOffset = App.Placement(V(0, 0, -5), App.Rotation())
sketch22.addGeometry(Part.Circle(V(16.6, 33.5, 0), V(0, 0, 1), 1.2), False)
sketch22.addGeometry(Part.Circle(V(47.7, 33.5, 0), V(0, 0, 1), 1.2), False)
sketch22.addConstraint(Sketcher.Constraint("Equal", 0, 1))
sketch22.addConstraint(Sketcher.Constraint("Horizontal", 0, 3, 1, 3))
sketch22.addConstraint(Sketcher.Constraint("Diameter", 0, 2.5))
sketch22.addConstraint(Sketcher.Constraint("DistanceY", -1, 1, 0, 3, 33.5))
sketch22.addConstraint(Sketcher.Constraint("DistanceX", 0, 3, 1, 3, 31.1))
sketch22.addConstraint(Sketcher.Constraint("DistanceX", -1, 1, 0, 3, 16.61))
doc.recompute()
hole5 = body.newObject("PartDesign::Hole", "Hole004")
hole5.Profile = sketch22
hole5.ThreadType = "None"
hole5.Diameter = 2.5
hole5.DepthType = "ThroughAll"

sketch23 = body.newObject("Sketcher::SketchObject", "Sketch022")
sketch23.AttachmentSupport = (doc.getObject("XZ_Plane"), [""])
sketch23.MapMode = "FlatFace"
sketch23.AttachmentOffset = App.Placement(V(0, 0, -20), App.Rotation())
add_polygon(sketch23, [(13, 15), (13, 37), (51, 37), (51, 15)])
sketch23.addConstraint(Sketcher.Constraint("Vertical", 0))
sketch23.addConstraint(Sketcher.Constraint("Horizontal", 1))
sketch23.addConstraint(Sketcher.Constraint("Vertical", 2))
sketch23.addConstraint(Sketcher.Constraint("Horizontal", 3))
sketch23.addConstraint(Sketcher.Constraint("DistanceY", 0, 1, 0, 2, 22.0))
sketch23.addConstraint(Sketcher.Constraint("DistanceX", 1, 1, 1, 2, 38.1))
sketch23.addConstraint(Sketcher.Constraint("DistanceY", -1, 1, 0, 2, 37.0))
sketch23.addConstraint(Sketcher.Constraint("DistanceX", -1, 1, 0, 2, 13.11))
pocket10 = body.newObject("PartDesign::Pocket", "Pocket009")
pocket10.Profile = sketch23
pocket10.Type = "ThroughAll"
pocket10.Reversed = True

sketch24 = body.newObject("Sketcher::SketchObject", "Sketch023")
sketch24.AttachmentSupport = (doc.getObject("XY_Plane"), [""])
sketch24.MapMode = "FlatFace"
sketch24.AttachmentOffset = App.Placement(V(0, 0, 15), App.Rotation())
sketch24.addGeometry(Part.Circle(V(32.2, 12.5, 0), V(0, 0, 1), 1.5), False)
sketch24.addConstraint(Sketcher.Constraint("Diameter", 0, 3.0))
sketch24.addConstraint(Sketcher.Constraint("DistanceY", -1, 1, 0, 3, 12.5))
sketch24.addConstraint(Sketcher.Constraint("DistanceX", -1, 1, 0, 3, 32.16))
doc.recompute()
hole6 = body.newObject("PartDesign::Hole", "Hole005")
hole6.Profile = sketch24
hole6.ThreadType = "None"
hole6.Diameter = 3
hole6.DepthType = "Dimension"
hole6.Depth = 5
hole6.DrillPoint = "Angled"
hole6.DrillPointAngle = 118

sketch25 = body.newObject("Sketcher::SketchObject", "Sketch024")
sketch25.AttachmentSupport = (doc.getObject("XY_Plane"), [""])
sketch25.MapMode = "FlatFace"
sketch25.AttachmentOffset = App.Placement(V(0, 0, 15), App.Rotation())
add_polygon(sketch25, [(14.7, 30), (14.7, -5), (49.7, -5), (49.7, 30)])
sketch25.addGeometry(Part.Circle(V(19.7, 0, 0), V(0, 0, 1), 1), False)
sketch25.addGeometry(Part.Circle(V(44.7, 0, 0), V(0, 0, 1), 1), False)
sketch25.addGeometry(Part.Circle(V(32.2, 12.5, 0), V(0, 0, 1), 4), False)
sketch25.addGeometry(Part.Circle(V(19.7, 25, 0), V(0, 0, 1), 1), False)
sketch25.addGeometry(Part.Circle(V(44.7, 25, 0), V(0, 0, 1), 1), False)
sketch25.addConstraint(Sketcher.Constraint("Vertical", 0))
sketch25.addConstraint(Sketcher.Constraint("Horizontal", 1))
sketch25.addConstraint(Sketcher.Constraint("Vertical", 2))
sketch25.addConstraint(Sketcher.Constraint("Horizontal", 3))
sketch25.addConstraint(Sketcher.Constraint("Equal", 4, 5))
sketch25.addConstraint(Sketcher.Constraint("Equal", 5, 7))
sketch25.addConstraint(Sketcher.Constraint("Equal", 7, 8))
sketch25.addConstraint(Sketcher.Constraint("PointOnObject", 4, 3, -1))
sketch25.addConstraint(Sketcher.Constraint("PointOnObject", 5, 3, -1))
sketch25.addConstraint(Sketcher.Constraint("Horizontal", 7, 3, 8, 3))
sketch25.addConstraint(Sketcher.Constraint("Vertical", 4, 3, 7, 3))
sketch25.addConstraint(Sketcher.Constraint("Vertical", 5, 3, 8, 3))
sketch25.addConstraint(Sketcher.Constraint("Equal", 3, 0))
sketch25.addConstraint(Sketcher.Constraint("Diameter", 4, 2.0))
sketch25.addConstraint(Sketcher.Constraint("Diameter", 6, 8.0))
sketch25.addConstraint(Sketcher.Constraint("DistanceX", 1, 1, 1, 2, 35.0))
sketch25.addConstraint(Sketcher.Constraint("DistanceY", -1, 1, 7, 3, 25.0))
sketch25.addConstraint(Sketcher.Constraint("DistanceY", 0, 2, -1, 1, 5.0))
sketch25.addConstraint(Sketcher.Constraint("DistanceX", 4, 3, 5, 3, 25.0))
sketch25.addConstraint(Sketcher.Constraint("DistanceX", 0, 2, 4, 3, 5.0))
sketch25.addConstraint(Sketcher.Constraint("DistanceY", -1, 1, 6, 3, 12.5))
sketch25.addConstraint(Sketcher.Constraint("DistanceX", 4, 3, 6, 3, 12.5))
sketch25.addConstraint(Sketcher.Constraint("DistanceX", -1, 1, 4, 3, 19.66))
pad8 = body.newObject("PartDesign::Pad", "Pad007")
pad8.Profile = sketch25
pad8.Length = 5
pad8.Reversed = True

sketch26 = body.newObject("Sketcher::SketchObject", "Sketch025")
sketch26.AttachmentSupport = (doc.getObject("XY_Plane"), [""])
sketch26.MapMode = "FlatFace"
sketch26.AttachmentOffset = App.Placement(V(0, 0, 15), App.Rotation())
sketch26.addGeometry(Part.Circle(V(32, 12, 0), V(0, 0, 1), 8), False)
sketch26.addGeometry(Part.Circle(V(32, 12, 0), V(0, 0, 1), 6), False)
sketch26.addConstraint(Sketcher.Constraint("Coincident", 1, 3, 0, 3))
sketch26.addConstraint(Sketcher.Constraint("Diameter", 0, 15.1))
sketch26.addConstraint(Sketcher.Constraint("Diameter", 1, 11.9))
sketch26.addConstraint(Sketcher.Constraint("DistanceY", -1, 1, 0, 3, 12.5))
sketch26.addConstraint(Sketcher.Constraint("DistanceX", -1, 1, 0, 3, 32.16))
pocket11 = body.newObject("PartDesign::Pocket", "Pocket010")
pocket11.Profile = sketch26
pocket11.Length = 0.9

sketch27 = body.newObject("Sketcher::SketchObject", "Sketch026")
sketch27.AttachmentSupport = (doc.getObject("XY_Plane"), [""])
sketch27.MapMode = "FlatFace"
sketch27.AttachmentOffset = App.Placement(V(0, 0, 15), App.Rotation())
sketch27.addGeometry(Part.Circle(V(19.7, 0, 0), V(0, 0, 1), 1.2), False)
sketch27.addGeometry(Part.Circle(V(19.7, 25, 0), V(0, 0, 1), 1.2), False)
sketch27.addGeometry(Part.Circle(V(44.7, 25, 0), V(0, 0, 1), 1.2), False)
sketch27.addGeometry(Part.Circle(V(44.7, 0, 0), V(0, 0, 1), 1.2), False)
sketch27.addConstraint(Sketcher.Constraint("Equal", 0, 1))
sketch27.addConstraint(Sketcher.Constraint("Equal", 1, 2))
sketch27.addConstraint(Sketcher.Constraint("Equal", 2, 3))
sketch27.addConstraint(Sketcher.Constraint("PointOnObject", 0, 3, -1))
sketch27.addConstraint(Sketcher.Constraint("PointOnObject", 3, 3, -1))
sketch27.addConstraint(Sketcher.Constraint("Horizontal", 1, 3, 2, 3))
sketch27.addConstraint(Sketcher.Constraint("Vertical", 0, 3, 1, 3))
sketch27.addConstraint(Sketcher.Constraint("Vertical", 2, 3, 3, 3))
sketch27.addConstraint(Sketcher.Constraint("Diameter", 0, 2.5))
sketch27.addConstraint(Sketcher.Constraint("DistanceY", -1, 1, 1, 3, 25.0))
sketch27.addConstraint(Sketcher.Constraint("DistanceX", 1, 3, 2, 3, 25.0))
sketch27.addConstraint(Sketcher.Constraint("DistanceX", -1, 1, 0, 3, 19.66))
doc.recompute()
hole7 = body.newObject("PartDesign::Hole", "Hole006")
hole7.Profile = sketch27
hole7.ThreadType = "None"
hole7.Diameter = 2.5
hole7.DepthType = "ThroughAll"

sketch28 = body.newObject("Sketcher::SketchObject", "Sketch027")
sketch28.AttachmentSupport = (doc.getObject("XZ_Plane"), [""])
sketch28.MapMode = "FlatFace"
sketch28.AttachmentOffset = App.Placement(V(0, 0, -20), App.Rotation())
add_polygon(sketch28, [(13.1, 5), (13.1, 15), (14.7, 15), (14.7, 5)])
add_polygon(sketch28, [(49.7, 5), (49.7, 15), (51.2, 15), (51.2, 5)])
sketch28.addConstraint(Sketcher.Constraint("Vertical", 0))
sketch28.addConstraint(Sketcher.Constraint("Horizontal", 1))
sketch28.addConstraint(Sketcher.Constraint("Vertical", 2))
sketch28.addConstraint(Sketcher.Constraint("Horizontal", 3))
sketch28.addConstraint(Sketcher.Constraint("Vertical", 4))
sketch28.addConstraint(Sketcher.Constraint("Horizontal", 5))
sketch28.addConstraint(Sketcher.Constraint("Vertical", 6))
sketch28.addConstraint(Sketcher.Constraint("Horizontal", 7))
sketch28.addConstraint(Sketcher.Constraint("Horizontal", 1, 2, 4, 2))
sketch28.addConstraint(Sketcher.Constraint("Horizontal", 3, 2, 6, 2))
sketch28.addConstraint(Sketcher.Constraint("Equal", 3, 5))
sketch28.addConstraint(Sketcher.Constraint("DistanceY", 0, 1, 0, 2, 10.0))
sketch28.addConstraint(Sketcher.Constraint("DistanceY", -1, 1, 0, 2, 15.0))
sketch28.addConstraint(Sketcher.Constraint("DistanceX", 1, 2, 4, 2, 35.0))
sketch28.addConstraint(Sketcher.Constraint("DistanceX", 1, 1, 1, 2, 1.55))
sketch28.addConstraint(Sketcher.Constraint("DistanceX", -1, 1, 0, 2, 13.11))
pocket12 = body.newObject("PartDesign::Pocket", "Pocket011")
pocket12.Profile = sketch28
pocket12.Type = "ThroughAll"
pocket12.Reversed = True
doc.recompute()

fillet2 = body.newObject("PartDesign::Fillet", "Fillet001")
fillet2.Base = (pocket12, edges_at(pocket12, [
    (14.66, -5, 12.5),
    (49.66, 30, 12.5),
    (14.66, 30, 12.5),
    (49.66, -5, 12.5),
]))
fillet2.Radius = 2

doc.recompute()
